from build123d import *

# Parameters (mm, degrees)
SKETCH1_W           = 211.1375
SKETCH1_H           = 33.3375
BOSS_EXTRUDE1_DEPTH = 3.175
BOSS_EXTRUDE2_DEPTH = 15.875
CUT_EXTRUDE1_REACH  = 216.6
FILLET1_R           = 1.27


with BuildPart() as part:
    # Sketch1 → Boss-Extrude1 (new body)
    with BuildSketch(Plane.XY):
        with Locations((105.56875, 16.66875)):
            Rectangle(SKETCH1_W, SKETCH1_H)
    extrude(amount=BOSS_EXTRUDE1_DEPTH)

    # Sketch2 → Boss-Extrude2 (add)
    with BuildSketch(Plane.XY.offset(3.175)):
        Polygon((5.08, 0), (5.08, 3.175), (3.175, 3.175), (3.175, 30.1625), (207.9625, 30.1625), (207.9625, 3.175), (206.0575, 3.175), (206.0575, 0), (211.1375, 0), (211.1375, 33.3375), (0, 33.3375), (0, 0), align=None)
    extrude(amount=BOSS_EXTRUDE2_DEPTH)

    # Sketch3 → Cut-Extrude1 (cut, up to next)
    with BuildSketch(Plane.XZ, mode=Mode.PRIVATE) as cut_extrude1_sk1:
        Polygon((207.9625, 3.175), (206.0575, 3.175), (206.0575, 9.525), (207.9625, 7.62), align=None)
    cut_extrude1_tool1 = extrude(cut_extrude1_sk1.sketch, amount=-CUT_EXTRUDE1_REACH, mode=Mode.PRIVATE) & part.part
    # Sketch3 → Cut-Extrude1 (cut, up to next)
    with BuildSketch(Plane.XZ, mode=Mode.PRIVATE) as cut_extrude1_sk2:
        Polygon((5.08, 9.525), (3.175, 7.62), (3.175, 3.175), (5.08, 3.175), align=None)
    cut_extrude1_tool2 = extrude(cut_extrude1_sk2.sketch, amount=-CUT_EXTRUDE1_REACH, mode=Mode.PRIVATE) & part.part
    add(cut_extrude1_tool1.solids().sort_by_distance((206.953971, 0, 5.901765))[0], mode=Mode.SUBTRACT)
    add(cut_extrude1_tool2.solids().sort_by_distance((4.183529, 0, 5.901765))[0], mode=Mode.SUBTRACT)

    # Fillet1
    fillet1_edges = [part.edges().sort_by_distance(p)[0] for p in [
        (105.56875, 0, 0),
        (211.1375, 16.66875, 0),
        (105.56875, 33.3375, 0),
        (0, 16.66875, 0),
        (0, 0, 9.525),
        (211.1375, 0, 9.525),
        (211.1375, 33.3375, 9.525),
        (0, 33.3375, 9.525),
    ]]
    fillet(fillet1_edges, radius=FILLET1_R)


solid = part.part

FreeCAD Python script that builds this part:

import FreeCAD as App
import Part
import Sketcher
Q = App.Units.Quantity


def edges_at(feature, points):
    """Names of the edges that pass closest to the given points."""
    edges = feature.Shape.Edges
    near = lambda p: min(range(len(edges)), key=lambda i: edges[i].distToShape(Part.Vertex(*p))[0])
    return sorted({f"Edge{near(p) + 1}" for p in points})

doc = App.newDocument("Part")
body = doc.addObject("PartDesign::Body", "Body")

# Sketch on XY plane
sketch1 = body.newObject("Sketcher::SketchObject", "Sketch")
sketch1.AttachmentSupport = (doc.getObject("XY_Plane"), [""])
sketch1.MapMode = "FlatFace"
sketch1.addGeometry(Part.LineSegment(App.Vector(0, 33, 0), App.Vector(0, 0, 0)), False)
sketch1.addGeometry(Part.LineSegment(App.Vector(0, 0, 0), App.Vector(211, 0, 0)), False)
sketch1.addGeometry(Part.LineSegment(App.Vector(211, 0, 0), App.Vector(211, 33, 0)), False)
sketch1.addGeometry(Part.LineSegment(App.Vector(211, 33, 0), App.Vector(0, 33, 0)), False)
sketch1.addConstraint(Sketcher.Constraint("Coincident", 0, 2, 1, 1))
sketch1.addConstraint(Sketcher.Constraint("Coincident", 1, 2, 2, 1))
sketch1.addConstraint(Sketcher.Constraint("Coincident", 2, 2, 3, 1))
sketch1.addConstraint(Sketcher.Constraint("Coincident", 3, 2, 0, 1))
sketch1.addConstraint(Sketcher.Constraint("Vertical", 0))
sketch1.addConstraint(Sketcher.Constraint("Horizontal", 1))
sketch1.addConstraint(Sketcher.Constraint("Vertical", 2))
sketch1.addConstraint(Sketcher.Constraint("Horizontal", 3))
sketch1.addConstraint(Sketcher.Constraint("Coincident", 0, 2, -1, 1))
sketch1.addConstraint(Sketcher.Constraint("DistanceX", 1, 1, 1, 2, Q("8.3125 in")))
sketch1.addConstraint(Sketcher.Constraint("DistanceY", 0, 2, 0, 1, Q("1.3125 in")))
pad1 = body.newObject("PartDesign::Pad", "Pad")
pad1.Profile = sketch1
pad1.Length = Q("0.125 in")

# Sketch on XY plane
sketch2 = body.newObject("Sketcher::SketchObject", "Sketch001")
sketch2.AttachmentSupport = (doc.getObject("XY_Plane"), [""])
sketch2.MapMode = "FlatFace"
sketch2.AttachmentOffset = App.Placement(App.Vector(0, 0, 0.125 * 25.4), App.Rotation())
sketch2.addGeometry(Part.LineSegment(App.Vector(5.1, 0, 0), App.Vector(5.1, 3.2, 0)), False)
sketch2.addGeometry(Part.LineSegment(App.Vector(5.1, 3.2, 0), App.Vector(3.2, 3.2, 0)), False)
sketch2.addGeometry(Part.LineSegment(App.Vector(3.2, 3.2, 0), App.Vector(3.2, 30.2, 0)), False)
sketch2.addGeometry(Part.LineSegment(App.Vector(3.2, 30.2, 0), App.Vector(208, 30.2, 0)), False)
sketch2.addGeometry(Part.LineSegment(App.Vector(208, 30.2, 0), App.Vector(208, 3.2, 0)), False)
sketch2.addGeometry(Part.LineSegment(App.Vector(208, 3.2, 0), App.Vector(206.1, 3.2, 0)), False)
sketch2.addGeometry(Part.LineSegment(App.Vector(206.1, 3.2, 0), App.Vector(206.1, 0, 0)), False)
sketch2.addGeometry(Part.LineSegment(App.Vector(206.1, 0, 0), App.Vector(211.1, 0, 0)), False)
sketch2.addGeometry(Part.LineSegment(App.Vector(211.1, 0, 0), App.Vector(211.1, 33.3, 0)), False)
sketch2.addGeometry(Part.LineSegment(App.Vector(211.1, 33.3, 0), App.Vector(0, 33.3, 0)), False)
sketch2.addGeometry(Part.LineSegment(App.Vector(0, 33.3, 0), App.Vector(0, 0, 0)), False)
sketch2.addGeometry(Part.LineSegment(App.Vector(0, 0, 0), App.Vector(5.1, 0, 0)), False)
sketch2.addConstraint(Sketcher.Constraint("Coincident", 0, 2, 1, 1))
sketch2.addConstraint(Sketcher.Constraint("Coincident", 1, 2, 2, 1))
sketch2.addConstraint(Sketcher.Constraint("Coincident", 2, 2, 3, 1))
sketch2.addConstraint(Sketcher.Constraint("Coincident", 3, 2, 4, 1))
sketch2.addConstraint(Sketcher.Constraint("Coincident", 4, 2, 5, 1))
sketch2.addConstraint(Sketcher.Constraint("Coincident", 5, 2, 6, 1))
sketch2.addConstraint(Sketcher.Constraint("Coincident", 6, 2, 7, 1))
sketch2.addConstraint(Sketcher.Constraint("Coincident", 7, 2, 8, 1))
sketch2.addConstraint(Sketcher.Constraint("Coincident", 8, 2, 9, 1))
sketch2.addConstraint(Sketcher.Constraint("Coincident", 9, 2, 10, 1))
sketch2.addConstraint(Sketcher.Constraint("Coincident", 10, 2, 11, 1))
sketch2.addConstraint(Sketcher.Constraint("Coincident", 11, 2, 0, 1))
sketch2.addConstraint(Sketcher.Constraint("Vertical", 0))
sketch2.addConstraint(Sketcher.Constraint("Horizontal", 1))
sketch2.addConstraint(Sketcher.Constraint("Vertical", 2))
sketch2.addConstraint(Sketcher.Constraint("Horizontal", 3))
sketch2.addConstraint(Sketcher.Constraint("Vertical", 4))
sketch2.addConstraint(Sketcher.Constraint("Horizontal", 5))
sketch2.addConstraint(Sketcher.Constraint("Vertical", 6))
sketch2.addConstraint(Sketcher.Constraint("Horizontal", 7))
sketch2.addConstraint(Sketcher.Constraint("Vertical", 8))
sketch2.addConstraint(Sketcher.Constraint("Horizontal", 9))
sketch2.addConstraint(Sketcher.Constraint("Vertical", 10))
sketch2.addConstraint(Sketcher.Constraint("Horizontal", 11))
sketch2.addConstraint(Sketcher.Constraint("Coincident", 10, 2, -1, 1))
sketch2.addConstraint(Sketcher.Constraint("PointOnObject", 6, 2, -1))
sketch2.addConstraint(Sketcher.Constraint("Horizontal", 1, 2, 4, 2))
sketch2.addConstraint(Sketcher.Constraint("Equal", 1, 5))
sketch2.addConstraint(Sketcher.Constraint("Equal", 7, 11))
sketch2.addConstraint(Sketcher.Constraint("DistanceX", 7, 1, 7, 2, Q("0.2 in")))
sketch2.addConstraint(Sketcher.Constraint("DistanceX", 1, 2, 1, 1, Q("0.075 in")))
sketch2.addConstraint(Sketcher.Constraint("DistanceX", 3, 1, 3, 2, Q("8.0625 in")))
sketch2.addConstraint(Sketcher.Constraint("DistanceY", 0, 1, 0, 2, Q("0.125 in")))
sketch2.addConstraint(Sketcher.Constraint("DistanceY", 2, 1, 2, 2, Q("1.0625 in")))
sketch2.addConstraint(Sketcher.Constraint("DistanceY", 8, 1, 8, 2, Q("1.3125 in")))
pad2 = body.newObject("PartDesign::Pad", "Pad001")
pad2.Profile = sketch2
pad2.Length = Q("0.625 in")

# Sketch on XZ plane
sketch3 = body.newObject("Sketcher::SketchObject", "Sketch002")
sketch3.AttachmentSupport = (doc.getObject("XZ_Plane"), [""])
sketch3.MapMode = "FlatFace"
sketch3.addGeometry(Part.LineSegment(App.Vector(206.1, 3.2, 0), App.Vector(208, 3.2, 0)), False)
sketch3.addGeometry(Part.LineSegment(App.Vector(208, 3.2, 0), App.Vector(208, 7.6, 0)), False)
sketch3.addGeometry(Part.LineSegment(App.Vector(208, 7.6, 0), App.Vector(206.1, 9.5, 0)), False)
sketch3.addGeometry(Part.LineSegment(App.Vector(206.1, 9.5, 0), App.Vector(206.1, 3.2, 0)), False)
sketch3.addConstraint(Sketcher.Constraint("Coincident", 0, 2, 1, 1))
sketch3.addConstraint(Sketcher.Constraint("Coincident", 1, 2, 2, 1))
sketch3.addConstraint(Sketcher.Constraint("Coincident", 2, 2, 3, 1))
sketch3.addConstraint(Sketcher.Constraint("Coincident", 3, 2, 0, 1))
sketch3.addConstraint(Sketcher.Constraint("Horizontal", 0))
sketch3.addConstraint(Sketcher.Constraint("Vertical", 1))
sketch3.addConstraint(Sketcher.Constraint("Vertical", 3))
sketch3.addConstraint(Sketcher.Constraint("Angle", 2, Q("135 deg")))
sketch3.addConstraint(Sketcher.Constraint("DistanceY", 3, 2, 3, 1, Q("0.25 in")))
sketch3.addConstraint(Sketcher.Constraint("DistanceY", -1, 1, 1, 2, Q("0.3 in")))
sketch3.addConstraint(Sketcher.Constraint("DistanceX", 0, 1, 0, 2, Q("0.075 in")))
sketch3.addConstraint(Sketcher.Constraint("DistanceX", -1, 1, 0, 2, Q("8.1875 in")))
pocket1 = body.newObject("PartDesign::Pocket", "Pocket")
pocket1.Profile = sketch3
pocket1.Type = "UpToFirst"

# Sketch on XZ plane
sketch4 = body.newObject("Sketcher::SketchObject", "Sketch003")
sketch4.AttachmentSupport = (doc.getObject("XZ_Plane"), [""])
sketch4.MapMode = "FlatFace"
sketch4.addGeometry(Part.LineSegment(App.Vector(5.1, 9.5, 0), App.Vector(3.2, 7.6, 0)), False)
sketch4.addGeometry(Part.LineSegment(App.Vector(3.2, 7.6, 0), App.Vector(3.2, 3.2, 0)), False)
sketch4.addGeometry(Part.LineSegment(App.Vector(3.2, 3.2, 0), App.Vector(5.1, 3.2, 0)), False)
sketch4.addGeometry(Part.LineSegment(App.Vector(5.1, 3.2, 0), App.Vector(5.1, 9.5, 0)), False)
sketch4.addConstraint(Sketcher.Constraint("Coincident", 0, 2, 1, 1))
sketch4.addConstraint(Sketcher.Constraint("Coincident", 1, 2, 2, 1))
sketch4.addConstraint(Sketcher.Constraint("Coincident", 2, 2, 3, 1))
sketch4.addConstraint(Sketcher.Constraint("Coincident", 3, 2, 0, 1))
sketch4.addConstraint(Sketcher.Constraint("Vertical", 1))
sketch4.addConstraint(Sketcher.Constraint("Horizontal", 2))
sketch4.addConstraint(Sketcher.Constraint("Vertical", 3))
sketch4.addConstraint(Sketcher.Constraint("Angle", 0, Q("-135 deg")))
sketch4.addConstraint(Sketcher.Constraint("DistanceY", 3, 1, 3, 2, Q("0.25 in")))
sketch4.addConstraint(Sketcher.Constraint("DistanceY", -1, 1, 0, 2, Q("0.3 in")))
sketch4.addConstraint(Sketcher.Constraint("DistanceX", -1, 1, 2, 2, Q("0.2 in")))
sketch4.addConstraint(Sketcher.Constraint("DistanceX", 2, 1, 2, 2, Q("0.075 in")))
pocket2 = body.newObject("PartDesign::Pocket", "Pocket001")
pocket2.Profile = sketch4
pocket2.Type = "UpToFirst"
doc.recompute()

fillet = body.newObject("PartDesign::Fillet", "Fillet")
fillet.Base = (pocket2, edges_at(pocket2, [
    (105.569, 0, 0),
    (211.137, 16.669, 0),
    (105.569, 33.337, 0),
    (0, 16.669, 0),
    (0, 0, 9.525),
    (211.137, 0, 9.525),
    (211.137, 33.337, 9.525),
    (0, 33.337, 9.525),
]))
fillet.Radius = Q("0.05 in")

doc.recompute()
